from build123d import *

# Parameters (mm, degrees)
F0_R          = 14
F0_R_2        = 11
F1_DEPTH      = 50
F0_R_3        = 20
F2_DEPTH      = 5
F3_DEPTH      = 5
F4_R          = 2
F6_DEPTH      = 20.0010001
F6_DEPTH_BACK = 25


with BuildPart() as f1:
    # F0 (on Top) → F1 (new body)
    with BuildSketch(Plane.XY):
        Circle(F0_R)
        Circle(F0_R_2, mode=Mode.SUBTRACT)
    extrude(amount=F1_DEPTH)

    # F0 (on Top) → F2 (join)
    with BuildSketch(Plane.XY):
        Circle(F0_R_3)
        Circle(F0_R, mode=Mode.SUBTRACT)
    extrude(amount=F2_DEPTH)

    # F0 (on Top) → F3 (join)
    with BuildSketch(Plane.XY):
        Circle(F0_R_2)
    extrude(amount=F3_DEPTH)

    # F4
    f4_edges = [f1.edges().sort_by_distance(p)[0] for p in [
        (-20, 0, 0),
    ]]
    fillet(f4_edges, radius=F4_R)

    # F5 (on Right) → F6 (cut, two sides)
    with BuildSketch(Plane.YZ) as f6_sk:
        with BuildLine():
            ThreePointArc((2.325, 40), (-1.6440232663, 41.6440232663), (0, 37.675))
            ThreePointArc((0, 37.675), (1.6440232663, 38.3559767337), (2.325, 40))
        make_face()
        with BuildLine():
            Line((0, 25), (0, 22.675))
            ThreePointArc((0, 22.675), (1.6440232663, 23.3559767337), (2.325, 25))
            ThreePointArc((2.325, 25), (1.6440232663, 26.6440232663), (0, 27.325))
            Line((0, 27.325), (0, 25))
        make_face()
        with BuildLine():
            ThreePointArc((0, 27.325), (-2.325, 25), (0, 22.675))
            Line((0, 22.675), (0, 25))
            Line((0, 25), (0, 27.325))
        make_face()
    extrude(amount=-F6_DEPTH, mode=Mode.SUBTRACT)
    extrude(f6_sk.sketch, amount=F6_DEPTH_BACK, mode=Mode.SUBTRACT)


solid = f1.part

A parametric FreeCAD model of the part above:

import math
import FreeCAD as App
import Part
import Sketcher
from FreeCAD import Vector


def edges_at(feature, points):
    """Names of the edges that pass closest to the given points."""
    edges = feature.Shape.Edges
    near = lambda p: min(range(len(edges)), key=lambda i: edges[i].distToShape(Part.Vertex(*p))[0])
    return sorted({f"Edge{near(p) + 1}" for p in points})

doc = App.newDocument("Part")
body = doc.addObject("PartDesign::Body", "Body")

# Sketch on XY plane
sketch1 = body.newObject("Sketcher::SketchObject", "Sketch")
sketch1.AttachmentSupport = (doc.getObject("XY_Plane"), [""])
sketch1.MapMode = "FlatFace"
sketch1.addGeometry([
    Part.Circle(Vector(0, 0, 0), Vector(0, 0, 1), 14),
    Part.Circle(Vector(0, 0, 0), Vector(0, 0, 1), 11),
], False)
sketch1.addConstraint([
    Sketcher.Constraint("Coincident", 0, 3, -1, 1),
    Sketcher.Constraint("Coincident", 1, 3, -1, 1),
    Sketcher.Constraint("Diameter", 0, 28.0),
    Sketcher.Constraint("Diameter", 1, 22.0),
])
pad1 = body.newObject("PartDesign::Pad", "Pad")
pad1.Profile = sketch1
pad1.Length = 50

# Sketch on XY plane
sketch2 = body.newObject("Sketcher::SketchObject", "Sketch001")
sketch2.AttachmentSupport = (doc.getObject("XY_Plane"), [""])
sketch2.MapMode = "FlatFace"
sketch2.addGeometry([
    Part.Circle(Vector(0, 0, 0), Vector(0, 0, 1), 20),
    Part.Circle(Vector(0, 0, 0), Vector(0, 0, 1), 14),
], False)
sketch2.addConstraint([
    Sketcher.Constraint("Coincident", 0, 3, -1, 1),
    Sketcher.Constraint("Coincident", 1, 3, -1, 1),
    Sketcher.Constraint("Diameter", 0, 40.0),
    Sketcher.Constraint("Diameter", 1, 28.0),
])
pad2 = body.newObject("PartDesign::Pad", "Pad001")
pad2.Profile = sketch2
pad2.Length = 5

# Sketch on XY plane
sketch3 = body.newObject("Sketcher::SketchObject", "Sketch002")
sketch3.AttachmentSupport = (doc.getObject("XY_Plane"), [""])
sketch3.MapMode = "FlatFace"
sketch3.addGeometry(Part.Circle(Vector(0, 0, 0), Vector(0, 0, 1), 11), False)
sketch3.addConstraint([
    Sketcher.Constraint("Coincident", 0, 3, -1, 1),
    Sketcher.Constraint("Diameter", 0, 22.0),
])
pad3 = body.newObject("PartDesign::Pad", "Pad002")
pad3.Profile = sketch3
pad3.Length = 5
doc.recompute()

fillet = body.newObject("PartDesign::Fillet", "Fillet")
fillet.Base = (pad3, edges_at(pad3, [(-20, 0, 0)]))
fillet.Radius = 2

# Sketch on YZ plane
sketch4 = body.newObject("Sketcher::SketchObject", "Sketch003")
sketch4.AttachmentSupport = (doc.getObject("YZ_Plane"), [""])
sketch4.MapMode = "FlatFace"
sketch4.addGeometry([
    Part.ArcOfCircle(Part.Circle(Vector(0, 40, 0), Vector(0, 0, 1), 2.3), math.radians(0), math.radians(270)),  # 0
    Part.ArcOfCircle(Part.Circle(Vector(0, 40, 0), Vector(0, 0, 1), 2.3), math.radians(-90), math.radians(0)),  # 1
    Part.ArcOfCircle(Part.Circle(Vector(0, 25, 0), Vector(0, 0, 1), 2.3), math.radians(-90), math.radians(0)),  # 2
    Part.ArcOfCircle(Part.Circle(Vector(0, 25, 0), Vector(0, 0, 1), 2.3), math.radians(0), math.radians(90)),  # 3
    Part.ArcOfCircle(Part.Circle(Vector(0, 25, 0), Vector(0, 0, 1), 2.3), math.radians(90), math.radians(270)),  # 4
], False)
sketch4.addConstraint([
    Sketcher.Constraint("Tangent", 0, 1, 1, 2),
    Sketcher.Constraint("Coincident", 1, 1, 0, 2),
    Sketcher.Constraint("Tangent", 2, 2, 3, 1),
    Sketcher.Constraint("Tangent", 3, 2, 4, 1),
    Sketcher.Constraint("Tangent", 4, 2, 2, 1),
    Sketcher.Constraint("Equal", 1, 2),
    Sketcher.Constraint("PointOnObject", 0, 3, -2),
    Sketcher.Constraint("PointOnObject", 2, 3, -2),
    Sketcher.Constraint("PointOnObject", 1, 1, -2),
    Sketcher.Constraint("PointOnObject", 3, 2, -2),
    Sketcher.Constraint("PointOnObject", 4, 2, -2),
    Sketcher.Constraint("Horizontal", 1, 3, 0, 1),
    Sketcher.Constraint("Horizontal", 4, 3, 2, 2),
    Sketcher.Constraint("DistanceY", -1, 1, 0, 3, 40.0),
    Sketcher.Constraint("DistanceY", -1, 1, 2, 3, 25.0),
    Sketcher.Constraint("Radius", 0, 2.325),
])
pocket1 = body.newObject("PartDesign::Pocket", "Pocket")
pocket1.Profile = sketch4
pocket1.Type = "ThroughAll"
pocket1.Midplane = True

doc.recompute()
